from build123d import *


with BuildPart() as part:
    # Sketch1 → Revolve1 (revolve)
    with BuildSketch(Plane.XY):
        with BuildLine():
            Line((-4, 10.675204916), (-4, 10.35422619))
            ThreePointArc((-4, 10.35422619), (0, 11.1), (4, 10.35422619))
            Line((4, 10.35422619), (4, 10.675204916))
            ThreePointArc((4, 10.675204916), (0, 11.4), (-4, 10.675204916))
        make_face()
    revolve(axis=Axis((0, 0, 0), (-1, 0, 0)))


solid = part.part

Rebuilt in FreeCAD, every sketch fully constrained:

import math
import FreeCAD as App
import Part
import Sketcher
Q = App.Units.Quantity

doc = App.newDocument("Part")
body = doc.addObject("PartDesign::Body", "Body")

sketch1 = body.newObject("Sketcher::SketchObject", "Sketch")
sketch1.AttachmentSupport = (doc.getObject("XY_Plane"), [""])
sketch1.MapMode = "FlatFace"
sketch1.addGeometry([
    Part.LineSegment(App.Vector(-4, 10.68, 0), App.Vector(-4, 10.35, 0)),
    Part.ArcOfCircle(Part.Circle(App.Vector(0, 0, 0), App.Vector(0, 0, 1), 11.1), math.radians(69), math.radians(111)),
    Part.LineSegment(App.Vector(4, 10.35, 0), App.Vector(4, 10.68, 0)),
    Part.ArcOfCircle(Part.Circle(App.Vector(0, 0, 0), App.Vector(0, 0, 1), 11.4), math.radians(69), math.radians(111)),
], False)
sketch1.addConstraint([
    Sketcher.Constraint("Coincident", 0, 2, 1, 2),
    Sketcher.Constraint("Coincident", 1, 1, 2, 1),
    Sketcher.Constraint("Coincident", 2, 2, 3, 1),
    Sketcher.Constraint("Coincident", 3, 2, 0, 1),
    Sketcher.Constraint("Vertical", 0),
    Sketcher.Constraint("Vertical", 2),
    Sketcher.Constraint("Coincident", 1, 3, -1, 1),
    Sketcher.Constraint("Coincident", 3, 3, -1, 1),
    Sketcher.Constraint("Horizontal", 0, 2, 1, 1),
    Sketcher.Constraint("Radius", 1, Q("11.1 mm")),
    Sketcher.Constraint("Radius", 3, Q("11.4 mm")),
    Sketcher.Constraint("DistanceX", 0, 2, -1, 1, Q("4 mm")),
])
revolution = body.newObject("PartDesign::Revolution", "Revolution")
revolution.Profile = sketch1
revolution.ReferenceAxis = (sketch1, ["H_Axis"])
revolution.Angle = 360

doc.recompute()
